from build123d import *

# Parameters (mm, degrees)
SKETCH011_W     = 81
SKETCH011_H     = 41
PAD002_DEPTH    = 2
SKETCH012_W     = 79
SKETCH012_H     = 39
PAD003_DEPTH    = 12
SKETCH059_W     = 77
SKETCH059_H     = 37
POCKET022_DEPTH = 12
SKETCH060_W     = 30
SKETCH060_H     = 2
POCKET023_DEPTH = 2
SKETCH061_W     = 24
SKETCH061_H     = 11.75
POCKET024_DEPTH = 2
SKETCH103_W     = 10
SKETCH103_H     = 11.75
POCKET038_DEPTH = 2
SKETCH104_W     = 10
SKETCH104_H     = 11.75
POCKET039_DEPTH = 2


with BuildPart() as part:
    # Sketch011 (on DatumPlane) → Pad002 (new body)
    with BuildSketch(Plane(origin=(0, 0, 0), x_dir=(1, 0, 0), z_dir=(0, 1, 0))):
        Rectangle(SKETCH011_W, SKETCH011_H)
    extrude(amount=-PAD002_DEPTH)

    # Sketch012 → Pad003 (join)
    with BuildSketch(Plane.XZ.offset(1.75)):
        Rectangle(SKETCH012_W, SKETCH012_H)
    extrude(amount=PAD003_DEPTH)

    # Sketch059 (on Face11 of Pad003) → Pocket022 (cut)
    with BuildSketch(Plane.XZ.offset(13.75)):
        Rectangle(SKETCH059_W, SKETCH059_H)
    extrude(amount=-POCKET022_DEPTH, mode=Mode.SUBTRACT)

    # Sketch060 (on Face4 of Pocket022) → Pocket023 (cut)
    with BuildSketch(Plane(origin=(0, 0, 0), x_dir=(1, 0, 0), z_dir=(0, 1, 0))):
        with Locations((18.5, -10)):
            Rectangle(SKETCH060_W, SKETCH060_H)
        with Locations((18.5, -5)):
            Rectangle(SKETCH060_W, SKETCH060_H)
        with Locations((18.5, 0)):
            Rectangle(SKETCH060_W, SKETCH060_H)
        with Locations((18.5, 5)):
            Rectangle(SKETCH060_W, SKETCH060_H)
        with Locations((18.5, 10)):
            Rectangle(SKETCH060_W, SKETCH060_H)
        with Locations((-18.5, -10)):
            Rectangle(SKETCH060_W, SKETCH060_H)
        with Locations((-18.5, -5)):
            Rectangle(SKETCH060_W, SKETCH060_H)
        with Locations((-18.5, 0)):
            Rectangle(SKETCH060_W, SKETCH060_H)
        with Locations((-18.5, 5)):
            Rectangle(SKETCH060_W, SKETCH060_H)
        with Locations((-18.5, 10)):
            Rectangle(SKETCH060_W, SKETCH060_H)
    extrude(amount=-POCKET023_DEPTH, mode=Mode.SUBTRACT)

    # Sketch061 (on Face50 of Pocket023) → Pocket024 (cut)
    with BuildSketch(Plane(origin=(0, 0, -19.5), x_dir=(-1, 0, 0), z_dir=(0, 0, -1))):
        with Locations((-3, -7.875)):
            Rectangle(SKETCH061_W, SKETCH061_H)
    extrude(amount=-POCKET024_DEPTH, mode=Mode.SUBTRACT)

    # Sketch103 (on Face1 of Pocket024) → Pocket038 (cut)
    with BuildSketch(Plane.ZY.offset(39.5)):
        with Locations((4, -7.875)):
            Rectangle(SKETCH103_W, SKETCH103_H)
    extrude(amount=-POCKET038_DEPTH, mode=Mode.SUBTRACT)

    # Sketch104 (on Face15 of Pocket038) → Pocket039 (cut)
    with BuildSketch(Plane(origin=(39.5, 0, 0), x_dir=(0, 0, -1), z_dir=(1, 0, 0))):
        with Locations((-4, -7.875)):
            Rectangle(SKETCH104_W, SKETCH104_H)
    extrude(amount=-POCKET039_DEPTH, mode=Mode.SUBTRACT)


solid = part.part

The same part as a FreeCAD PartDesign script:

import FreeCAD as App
import Part
import Sketcher

V = App.Vector

doc = App.newDocument("Part")
params = doc.addObject("Spreadsheet::Sheet", "Params")
for row, (alias, value) in enumerate([
    ("sketch1_width", "81 mm"),
    ("sketch1_height", "41 mm"),
    ("pad1_length", "2 mm"),
    ("sketch2_width", "79 mm"),
    ("sketch2_height", "39 mm"),
    ("pad2_length", "12 mm"),
    ("sketch3_width", "77 mm"),
    ("sketch3_height", "37 mm"),
    ("pocket1_length", "12 mm"),
    ("sketch4_width", "30 mm"),
    ("sketch4_height", "2 mm"),
    ("pocket2_length", "2 mm"),
    ("sketch5_width", "24 mm"),
    ("sketch5_height", "11.75 mm"),
    ("pocket3_length", "2 mm"),
    ("sketch6_height", "10 mm"),
    ("sketch6_width", "11.75 mm"),
    ("pocket4_length", "2 mm"),
    ("sketch7_height", "10 mm"),
    ("sketch7_width", "11.75 mm"),
    ("pocket5_length", "2 mm"),
], start=1):
    params.set(f"A{row}", alias)
    params.set(f"B{row}", "=" + value)
    params.setAlias(f"B{row}", alias)

body = doc.addObject("PartDesign::Body", "Body")

# Sketch on XZ plane
sketch1 = body.newObject("Sketcher::SketchObject", "Sketch")
sketch1.AttachmentSupport = (doc.getObject("XZ_Plane"), [""])
sketch1.MapMode = "FlatFace"
sketch1.addGeometry([
    Part.LineSegment(V(-40, -20, 0), V(-40, 20, 0)),
    Part.LineSegment(V(-40, 20, 0), V(40, 20, 0)),
    Part.LineSegment(V(40, 20, 0), V(40, -20, 0)),
    Part.LineSegment(V(40, -20, 0), V(-40, -20, 0)),
], False)
sketch1.addConstraint([
    Sketcher.Constraint("Coincident", 0, 2, 1, 1),
    Sketcher.Constraint("Coincident", 1, 2, 2, 1),
    Sketcher.Constraint("Coincident", 2, 2, 3, 1),
    Sketcher.Constraint("Coincident", 3, 2, 0, 1),
    Sketcher.Constraint("Vertical", 0),
    Sketcher.Constraint("Horizontal", 1),
    Sketcher.Constraint("Vertical", 2),
    Sketcher.Constraint("Horizontal", 3),
    Sketcher.Constraint("Symmetric", 0, 2, 2, 2, -1, 1),
    Sketcher.Constraint("DistanceX", 1, 1, 1, 2, 81.0),
    Sketcher.Constraint("DistanceY", 0, 1, 0, 2, 41.0),
])
sketch1.setExpression("Constraints[9]", "Params.sketch1_width")
sketch1.setExpression("Constraints[10]", "Params.sketch1_height")
pad1 = body.newObject("PartDesign::Pad", "Pad")
pad1.Profile = sketch1
pad1.setExpression("Length", "Params.pad1_length")

# Sketch on XZ plane
sketch2 = body.newObject("Sketcher::SketchObject", "Sketch001")
sketch2.AttachmentSupport = (doc.getObject("XZ_Plane"), [""])
sketch2.MapMode = "FlatFace"
sketch2.AttachmentOffset = App.Placement(V(0, 0, 1.75), App.Rotation())
sketch2.addGeometry([
    Part.LineSegment(V(-40, 20, 0), V(-40, -20, 0)),
    Part.LineSegment(V(-40, -20, 0), V(40, -20, 0)),
    Part.LineSegment(V(40, -20, 0), V(40, 20, 0)),
    Part.LineSegment(V(40, 20, 0), V(-40, 20, 0)),
], False)
sketch2.addConstraint([
    Sketcher.Constraint("Coincident", 0, 2, 1, 1),
    Sketcher.Constraint("Coincident", 1, 2, 2, 1),
    Sketcher.Constraint("Coincident", 2, 2, 3, 1),
    Sketcher.Constraint("Coincident", 3, 2, 0, 1),
    Sketcher.Constraint("Vertical", 0),
    Sketcher.Constraint("Horizontal", 1),
    Sketcher.Constraint("Vertical", 2),
    Sketcher.Constraint("Horizontal", 3),
    Sketcher.Constraint("Symmetric", 0, 2, 2, 2, -1, 1),
    Sketcher.Constraint("DistanceX", 1, 1, 1, 2, 79.0),
    Sketcher.Constraint("DistanceY", 0, 2, 0, 1, 39.0),
])
sketch2.setExpression("Constraints[9]", "Params.sketch2_width")
sketch2.setExpression("Constraints[10]", "Params.sketch2_height")
pad2 = body.newObject("PartDesign::Pad", "Pad001")
pad2.Profile = sketch2
pad2.setExpression("Length", "Params.pad2_length")

# Sketch on XZ plane
sketch3 = body.newObject("Sketcher::SketchObject", "Sketch002")
sketch3.AttachmentSupport = (doc.getObject("XZ_Plane"), [""])
sketch3.MapMode = "FlatFace"
sketch3.AttachmentOffset = App.Placement(V(0, 0, 13.75), App.Rotation())
sketch3.addGeometry([
    Part.LineSegment(V(-38, 18, 0), V(-38, -18, 0)),
    Part.LineSegment(V(-38, -18, 0), V(38, -18, 0)),
    Part.LineSegment(V(38, -18, 0), V(38, 18, 0)),
    Part.LineSegment(V(38, 18, 0), V(-38, 18, 0)),
], False)
sketch3.addConstraint([
    Sketcher.Constraint("Coincident", 0, 2, 1, 1),
    Sketcher.Constraint("Coincident", 1, 2, 2, 1),
    Sketcher.Constraint("Coincident", 2, 2, 3, 1),
    Sketcher.Constraint("Coincident", 3, 2, 0, 1),
    Sketcher.Constraint("Vertical", 0),
    Sketcher.Constraint("Horizontal", 1),
    Sketcher.Constraint("Vertical", 2),
    Sketcher.Constraint("Horizontal", 3),
    Sketcher.Constraint("Symmetric", 0, 2, 2, 2, -1, 1),
    Sketcher.Constraint("DistanceX", 1, 1, 1, 2, 77.0),
    Sketcher.Constraint("DistanceY", 0, 2, 0, 1, 37.0),
])
sketch3.setExpression("Constraints[9]", "Params.sketch3_width")
sketch3.setExpression("Constraints[10]", "Params.sketch3_height")
pocket1 = body.newObject("PartDesign::Pocket", "Pocket")
pocket1.Profile = sketch3
pocket1.setExpression("Length", "Params.pocket1_length")

# Sketch on XZ plane
sketch4 = body.newObject("Sketcher::SketchObject", "Sketch003")
sketch4.AttachmentSupport = (doc.getObject("XZ_Plane"), [""])
sketch4.MapMode = "FlatFace"
sketch4.addGeometry([
    Part.LineSegment(V(3.5, 9, 0), V(3.5, 11, 0)),  # 0
    Part.LineSegment(V(3.5, 11, 0), V(33.5, 11, 0)),  # 1
    Part.LineSegment(V(33.5, 11, 0), V(33.5, 9, 0)),  # 2
    Part.LineSegment(V(33.5, 9, 0), V(3.5, 9, 0)),  # 3
    Part.LineSegment(V(3.5, 4, 0), V(3.5, 6, 0)),  # 4
    Part.LineSegment(V(3.5, 6, 0), V(33.5, 6, 0)),  # 5
    Part.LineSegment(V(33.5, 6, 0), V(33.5, 4, 0)),  # 6
    Part.LineSegment(V(33.5, 4, 0), V(3.5, 4, 0)),  # 7
    Part.LineSegment(V(3.5, -1, 0), V(3.5, 1, 0)),  # 8
    Part.LineSegment(V(3.5, 1, 0), V(33.5, 1, 0)),  # 9
    Part.LineSegment(V(33.5, 1, 0), V(33.5, -1, 0)),  # 10
    Part.LineSegment(V(33.5, -1, 0), V(3.5, -1, 0)),  # 11
    Part.LineSegment(V(3.5, -6, 0), V(3.5, -4, 0)),  # 12
    Part.LineSegment(V(3.5, -4, 0), V(33.5, -4, 0)),  # 13
    Part.LineSegment(V(33.5, -4, 0), V(33.5, -6, 0)),  # 14
    Part.LineSegment(V(33.5, -6, 0), V(3.5, -6, 0)),  # 15
    Part.LineSegment(V(3.5, -11, 0), V(3.5, -9, 0)),  # 16
    Part.LineSegment(V(3.5, -9, 0), V(33.5, -9, 0)),  # 17
    Part.LineSegment(V(33.5, -9, 0), V(33.5, -11, 0)),  # 18
    Part.LineSegment(V(33.5, -11, 0), V(3.5, -11, 0)),  # 19
    Part.LineSegment(V(-33.5, 9, 0), V(-33.5, 11, 0)),  # 20
    Part.LineSegment(V(-33.5, 11, 0), V(-3.5, 11, 0)),  # 21
    Part.LineSegment(V(-3.5, 11, 0), V(-3.5, 9, 0)),  # 22
    Part.LineSegment(V(-3.5, 9, 0), V(-33.5, 9, 0)),  # 23
    Part.LineSegment(V(-33.5, 4, 0), V(-33.5, 6, 0)),  # 24
    Part.LineSegment(V(-33.5, 6, 0), V(-3.5, 6, 0)),  # 25
    Part.LineSegment(V(-3.5, 6, 0), V(-3.5, 4, 0)),  # 26
    Part.LineSegment(V(-3.5, 4, 0), V(-33.5, 4, 0)),  # 27
    Part.LineSegment(V(-33.5, -1, 0), V(-33.5, 1, 0)),  # 28
    Part.LineSegment(V(-33.5, 1, 0), V(-3.5, 1, 0)),  # 29
    Part.LineSegment(V(-3.5, 1, 0), V(-3.5, -1, 0)),  # 30
    Part.LineSegment(V(-3.5, -1, 0), V(-33.5, -1, 0)),  # 31
    Part.LineSegment(V(-33.5, -6, 0), V(-33.5, -4, 0)),  # 32
    Part.LineSegment(V(-33.5, -4, 0), V(-3.5, -4, 0)),  # 33
    Part.LineSegment(V(-3.5, -4, 0), V(-3.5, -6, 0)),  # 34
    Part.LineSegment(V(-3.5, -6, 0), V(-33.5, -6, 0)),  # 35
    Part.LineSegment(V(-33.5, -11, 0), V(-33.5, -9, 0)),  # 36
    Part.LineSegment(V(-33.5, -9, 0), V(-3.5, -9, 0)),  # 37
    Part.LineSegment(V(-3.5, -9, 0), V(-3.5, -11, 0)),  # 38
    Part.LineSegment(V(-3.5, -11, 0), V(-33.5, -11, 0)),  # 39
], False)
sketch4.addConstraint([
    Sketcher.Constraint("Coincident", 0, 2, 1, 1),
    Sketcher.Constraint("Coincident", 1, 2, 2, 1),
    Sketcher.Constraint("Coincident", 2, 2, 3, 1),
    Sketcher.Constraint("Coincident", 3, 2, 0, 1),
    Sketcher.Constraint("Coincident", 4, 2, 5, 1),
    Sketcher.Constraint("Coincident", 5, 2, 6, 1),
    Sketcher.Constraint("Coincident", 6, 2, 7, 1),
    Sketcher.Constraint("Coincident", 7, 2, 4, 1),
    Sketcher.Constraint("Coincident", 8, 2, 9, 1),
    Sketcher.Constraint("Coincident", 9, 2, 10, 1),
    Sketcher.Constraint("Coincident", 10, 2, 11, 1),
    Sketcher.Constraint("Coincident", 11, 2, 8, 1),
    Sketcher.Constraint("Coincident", 12, 2, 13, 1),
    Sketcher.Constraint("Coincident", 13, 2, 14, 1),
    Sketcher.Constraint("Coincident", 14, 2, 15, 1),
    Sketcher.Constraint("Coincident", 15, 2, 12, 1),
    Sketcher.Constraint("Coincident", 16, 2, 17, 1),
    Sketcher.Constraint("Coincident", 17, 2, 18, 1),
    Sketcher.Constraint("Coincident", 18, 2, 19, 1),
    Sketcher.Constraint("Coincident", 19, 2, 16, 1),
    Sketcher.Constraint("Coincident", 20, 2, 21, 1),
    Sketcher.Constraint("Coincident", 21, 2, 22, 1),
    Sketcher.Constraint("Coincident", 22, 2, 23, 1),
    Sketcher.Constraint("Coincident", 23, 2, 20, 1),
    Sketcher.Constraint("Coincident", 24, 2, 25, 1),
    Sketcher.Constraint("Coincident", 25, 2, 26, 1),
    Sketcher.Constraint("Coincident", 26, 2, 27, 1),
    Sketcher.Constraint("Coincident", 27, 2, 24, 1),
    Sketcher.Constraint("Coincident", 28, 2, 29, 1),
    Sketcher.Constraint("Coincident", 29, 2, 30, 1),
    Sketcher.Constraint("Coincident", 30, 2, 31, 1),
    Sketcher.Constraint("Coincident", 31, 2, 28, 1),
    Sketcher.Constraint("Coincident", 32, 2, 33, 1),
    Sketcher.Constraint("Coincident", 33, 2, 34, 1),
    Sketcher.Constraint("Coincident", 34, 2, 35, 1),
    Sketcher.Constraint("Coincident", 35, 2, 32, 1),
    Sketcher.Constraint("Coincident", 36, 2, 37, 1),
    Sketcher.Constraint("Coincident", 37, 2, 38, 1),
    Sketcher.Constraint("Coincident", 38, 2, 39, 1),
    Sketcher.Constraint("Coincident", 39, 2, 36, 1),
    Sketcher.Constraint("Vertical", 0),
    Sketcher.Constraint("Horizontal", 1),
    Sketcher.Constraint("Vertical", 2),
    Sketcher.Constraint("Horizontal", 3),
    Sketcher.Constraint("Vertical", 4),
    Sketcher.Constraint("Horizontal", 5),
    Sketcher.Constraint("Vertical", 6),
    Sketcher.Constraint("Horizontal", 7),
    Sketcher.Constraint("Vertical", 8),
    Sketcher.Constraint("Horizontal", 9),
    Sketcher.Constraint("Vertical", 10),
    Sketcher.Constraint("Horizontal", 11),
    Sketcher.Constraint("Vertical", 12),
    Sketcher.Constraint("Horizontal", 13),
    Sketcher.Constraint("Vertical", 14),
    Sketcher.Constraint("Horizontal", 15),
    Sketcher.Constraint("Vertical", 16),
    Sketcher.Constraint("Horizontal", 17),
    Sketcher.Constraint("Vertical", 18),
    Sketcher.Constraint("Horizontal", 19),
    Sketcher.Constraint("Vertical", 20),
    Sketcher.Constraint("Horizontal", 21),
    Sketcher.Constraint("Vertical", 22),
    Sketcher.Constraint("Horizontal", 23),
    Sketcher.Constraint("Vertical", 24),
    Sketcher.Constraint("Horizontal", 25),
    Sketcher.Constraint("Vertical", 26),
    Sketcher.Constraint("Horizontal", 27),
    Sketcher.Constraint("Vertical", 28),
    Sketcher.Constraint("Horizontal", 29),
    Sketcher.Constraint("Vertical", 30),
    Sketcher.Constraint("Horizontal", 31),
    Sketcher.Constraint("Vertical", 32),
    Sketcher.Constraint("Horizontal", 33),
    Sketcher.Constraint("Vertical", 34),
    Sketcher.Constraint("Horizontal", 35),
    Sketcher.Constraint("Vertical", 36),
    Sketcher.Constraint("Horizontal", 37),
    Sketcher.Constraint("Vertical", 38),
    Sketcher.Constraint("Horizontal", 39),
    Sketcher.Constraint("Symmetric", 18, 2, 20, 2, -1, 1),
    Sketcher.Constraint("Symmetric", 16, 2, 22, 2, -1, 1),
    Sketcher.Constraint("Symmetric", 14, 2, 24, 2, -1, 1),
    Sketcher.Constraint("Symmetric", 12, 2, 26, 2, -1, 1),
    Sketcher.Constraint("Symmetric", 10, 2, 28, 2, -1, 1),
    Sketcher.Constraint("Symmetric", 8, 2, 30, 2, -1, 1),
    Sketcher.Constraint("Symmetric", 6, 2, 32, 2, -1, 1),
    Sketcher.Constraint("Symmetric", 4, 2, 34, 2, -1, 1),
    Sketcher.Constraint("Symmetric", 2, 2, 36, 2, -1, 1),
    Sketcher.Constraint("Symmetric", 0, 2, 38, 2, -1, 1),
    Sketcher.Constraint("Symmetric", 1, 2, 20, 2, -2),
    Sketcher.Constraint("Symmetric", 3, 2, 22, 2, -2),
    Sketcher.Constraint("Symmetric", 5, 2, 24, 2, -2),
    Sketcher.Constraint("Symmetric", 7, 2, 26, 2, -2),
    Sketcher.Constraint("Horizontal", 9, 2, 28, 2),
    Sketcher.Constraint("Vertical", 3, 2, 4, 2),
    Sketcher.Constraint("Vertical", 2, 2, 5, 2),
    Sketcher.Constraint("Vertical", 7, 2, 8, 2),
    Sketcher.Constraint("Vertical", 6, 2, 9, 2),
    Sketcher.Constraint("Equal", 2, 4),
    Sketcher.Constraint("Equal", 6, 8),
    Sketcher.Constraint("DistanceX", 1, 1, 1, 2, 30.0),
    Sketcher.Constraint("DistanceY", 0, 1, 0, 2, 2.0),
    Sketcher.Constraint("DistanceY", -1, 1, 0, 2, 11.0),
    Sketcher.Constraint("DistanceY", -1, 1, 4, 2, 6.0),
    Sketcher.Constraint("DistanceX", 20, 2, 0, 2, 37.0),
])
sketch4.setExpression("Constraints[101]", "Params.sketch4_width")
sketch4.setExpression("Constraints[102]", "Params.sketch4_height")
pocket2 = body.newObject("PartDesign::Pocket", "Pocket001")
pocket2.Profile = sketch4
pocket2.setExpression("Length", "Params.pocket2_length")
pocket2.Reversed = True

# Sketch on XY plane
sketch5 = body.newObject("Sketcher::SketchObject", "Sketch004")
sketch5.AttachmentSupport = (doc.getObject("XY_Plane"), [""])
sketch5.MapMode = "FlatFace"
sketch5.AttachmentOffset = App.Placement(V(0, 0, -19.5), App.Rotation())
sketch5.addGeometry([
    Part.LineSegment(V(15, -2, 0), V(15, -14, 0)),
    Part.LineSegment(V(15, -14, 0), V(-9, -14, 0)),
    Part.LineSegment(V(-9, -14, 0), V(-9, -2, 0)),
    Part.LineSegment(V(-9, -2, 0), V(15, -2, 0)),
], False)
sketch5.addConstraint([
    Sketcher.Constraint("Coincident", 0, 2, 1, 1),
    Sketcher.Constraint("Coincident", 1, 2, 2, 1),
    Sketcher.Constraint("Coincident", 2, 2, 3, 1),
    Sketcher.Constraint("Coincident", 3, 2, 0, 1),
    Sketcher.Constraint("Vertical", 0),
    Sketcher.Constraint("Horizontal", 1),
    Sketcher.Constraint("Vertical", 2),
    Sketcher.Constraint("Horizontal", 3),
    Sketcher.Constraint("DistanceX", 1, 2, 1, 1, 24.0),
    Sketcher.Constraint("DistanceX", -1, 1, 0, 2, 15.0),
    Sketcher.Constraint("DistanceY", 2, 2, -1, 1, 2.0),
    Sketcher.Constraint("DistanceY", 0, 2, 0, 1, 11.75),
])
sketch5.setExpression("Constraints[8]", "Params.sketch5_width")
sketch5.setExpression("Constraints[11]", "Params.sketch5_height")
pocket3 = body.newObject("PartDesign::Pocket", "Pocket002")
pocket3.Profile = sketch5
pocket3.setExpression("Length", "Params.pocket3_length")
pocket3.Reversed = True

# Sketch on YZ plane
sketch6 = body.newObject("Sketcher::SketchObject", "Sketch005")
sketch6.AttachmentSupport = (doc.getObject("YZ_Plane"), [""])
sketch6.MapMode = "FlatFace"
sketch6.AttachmentOffset = App.Placement(V(0, 0, -39.5), App.Rotation())
sketch6.addGeometry([
    Part.LineSegment(V(-2, -1, 0), V(-14, -1, 0)),
    Part.LineSegment(V(-14, -1, 0), V(-14, 9, 0)),
    Part.LineSegment(V(-14, 9, 0), V(-2, 9, 0)),
    Part.LineSegment(V(-2, 9, 0), V(-2, -1, 0)),
], False)
sketch6.addConstraint([
    Sketcher.Constraint("Coincident", 0, 2, 1, 1),
    Sketcher.Constraint("Coincident", 1, 2, 2, 1),
    Sketcher.Constraint("Coincident", 2, 2, 3, 1),
    Sketcher.Constraint("Coincident", 3, 2, 0, 1),
    Sketcher.Constraint("Horizontal", 0),
    Sketcher.Constraint("Vertical", 1),
    Sketcher.Constraint("Horizontal", 2),
    Sketcher.Constraint("Vertical", 3),
    Sketcher.Constraint("DistanceY", 1, 1, 1, 2, 10.0),
    Sketcher.Constraint("DistanceY", 0, 2, -1, 1, 1.0),
    Sketcher.Constraint("DistanceX", 2, 2, -1, 1, 2.0),
    Sketcher.Constraint("DistanceX", 0, 2, 0, 1, 11.75),
])
sketch6.setExpression("Constraints[8]", "Params.sketch6_height")
sketch6.setExpression("Constraints[11]", "Params.sketch6_width")
pocket4 = body.newObject("PartDesign::Pocket", "Pocket003")
pocket4.Profile = sketch6
pocket4.setExpression("Length", "Params.pocket4_length")
pocket4.Reversed = True

# Sketch on YZ plane
sketch7 = body.newObject("Sketcher::SketchObject", "Sketch006")
sketch7.AttachmentSupport = (doc.getObject("YZ_Plane"), [""])
sketch7.MapMode = "FlatFace"
sketch7.AttachmentOffset = App.Placement(V(0, 0, 39.5), App.Rotation())
sketch7.addGeometry([
    Part.LineSegment(V(-2, 9, 0), V(-14, 9, 0)),
    Part.LineSegment(V(-14, 9, 0), V(-14, -1, 0)),
    Part.LineSegment(V(-14, -1, 0), V(-2, -1, 0)),
    Part.LineSegment(V(-2, -1, 0), V(-2, 9, 0)),
], False)
sketch7.addConstraint([
    Sketcher.Constraint("Coincident", 0, 2, 1, 1),
    Sketcher.Constraint("Coincident", 1, 2, 2, 1),
    Sketcher.Constraint("Coincident", 2, 2, 3, 1),
    Sketcher.Constraint("Coincident", 3, 2, 0, 1),
    Sketcher.Constraint("Horizontal", 0),
    Sketcher.Constraint("Vertical", 1),
    Sketcher.Constraint("Horizontal", 2),
    Sketcher.Constraint("Vertical", 3),
    Sketcher.Constraint("DistanceY", 1, 2, 1, 1, 10.0),
    Sketcher.Constraint("DistanceY", -1, 1, 0, 2, 9.0),
    Sketcher.Constraint("DistanceX", 2, 2, -1, 1, 2.0),
    Sketcher.Constraint("DistanceX", 0, 2, 0, 1, 11.75),
])
sketch7.setExpression("Constraints[8]", "Params.sketch7_height")
sketch7.setExpression("Constraints[11]", "Params.sketch7_width")
pocket5 = body.newObject("PartDesign::Pocket", "Pocket004")
pocket5.Profile = sketch7
pocket5.setExpression("Length", "Params.pocket5_length")

doc.recompute()
